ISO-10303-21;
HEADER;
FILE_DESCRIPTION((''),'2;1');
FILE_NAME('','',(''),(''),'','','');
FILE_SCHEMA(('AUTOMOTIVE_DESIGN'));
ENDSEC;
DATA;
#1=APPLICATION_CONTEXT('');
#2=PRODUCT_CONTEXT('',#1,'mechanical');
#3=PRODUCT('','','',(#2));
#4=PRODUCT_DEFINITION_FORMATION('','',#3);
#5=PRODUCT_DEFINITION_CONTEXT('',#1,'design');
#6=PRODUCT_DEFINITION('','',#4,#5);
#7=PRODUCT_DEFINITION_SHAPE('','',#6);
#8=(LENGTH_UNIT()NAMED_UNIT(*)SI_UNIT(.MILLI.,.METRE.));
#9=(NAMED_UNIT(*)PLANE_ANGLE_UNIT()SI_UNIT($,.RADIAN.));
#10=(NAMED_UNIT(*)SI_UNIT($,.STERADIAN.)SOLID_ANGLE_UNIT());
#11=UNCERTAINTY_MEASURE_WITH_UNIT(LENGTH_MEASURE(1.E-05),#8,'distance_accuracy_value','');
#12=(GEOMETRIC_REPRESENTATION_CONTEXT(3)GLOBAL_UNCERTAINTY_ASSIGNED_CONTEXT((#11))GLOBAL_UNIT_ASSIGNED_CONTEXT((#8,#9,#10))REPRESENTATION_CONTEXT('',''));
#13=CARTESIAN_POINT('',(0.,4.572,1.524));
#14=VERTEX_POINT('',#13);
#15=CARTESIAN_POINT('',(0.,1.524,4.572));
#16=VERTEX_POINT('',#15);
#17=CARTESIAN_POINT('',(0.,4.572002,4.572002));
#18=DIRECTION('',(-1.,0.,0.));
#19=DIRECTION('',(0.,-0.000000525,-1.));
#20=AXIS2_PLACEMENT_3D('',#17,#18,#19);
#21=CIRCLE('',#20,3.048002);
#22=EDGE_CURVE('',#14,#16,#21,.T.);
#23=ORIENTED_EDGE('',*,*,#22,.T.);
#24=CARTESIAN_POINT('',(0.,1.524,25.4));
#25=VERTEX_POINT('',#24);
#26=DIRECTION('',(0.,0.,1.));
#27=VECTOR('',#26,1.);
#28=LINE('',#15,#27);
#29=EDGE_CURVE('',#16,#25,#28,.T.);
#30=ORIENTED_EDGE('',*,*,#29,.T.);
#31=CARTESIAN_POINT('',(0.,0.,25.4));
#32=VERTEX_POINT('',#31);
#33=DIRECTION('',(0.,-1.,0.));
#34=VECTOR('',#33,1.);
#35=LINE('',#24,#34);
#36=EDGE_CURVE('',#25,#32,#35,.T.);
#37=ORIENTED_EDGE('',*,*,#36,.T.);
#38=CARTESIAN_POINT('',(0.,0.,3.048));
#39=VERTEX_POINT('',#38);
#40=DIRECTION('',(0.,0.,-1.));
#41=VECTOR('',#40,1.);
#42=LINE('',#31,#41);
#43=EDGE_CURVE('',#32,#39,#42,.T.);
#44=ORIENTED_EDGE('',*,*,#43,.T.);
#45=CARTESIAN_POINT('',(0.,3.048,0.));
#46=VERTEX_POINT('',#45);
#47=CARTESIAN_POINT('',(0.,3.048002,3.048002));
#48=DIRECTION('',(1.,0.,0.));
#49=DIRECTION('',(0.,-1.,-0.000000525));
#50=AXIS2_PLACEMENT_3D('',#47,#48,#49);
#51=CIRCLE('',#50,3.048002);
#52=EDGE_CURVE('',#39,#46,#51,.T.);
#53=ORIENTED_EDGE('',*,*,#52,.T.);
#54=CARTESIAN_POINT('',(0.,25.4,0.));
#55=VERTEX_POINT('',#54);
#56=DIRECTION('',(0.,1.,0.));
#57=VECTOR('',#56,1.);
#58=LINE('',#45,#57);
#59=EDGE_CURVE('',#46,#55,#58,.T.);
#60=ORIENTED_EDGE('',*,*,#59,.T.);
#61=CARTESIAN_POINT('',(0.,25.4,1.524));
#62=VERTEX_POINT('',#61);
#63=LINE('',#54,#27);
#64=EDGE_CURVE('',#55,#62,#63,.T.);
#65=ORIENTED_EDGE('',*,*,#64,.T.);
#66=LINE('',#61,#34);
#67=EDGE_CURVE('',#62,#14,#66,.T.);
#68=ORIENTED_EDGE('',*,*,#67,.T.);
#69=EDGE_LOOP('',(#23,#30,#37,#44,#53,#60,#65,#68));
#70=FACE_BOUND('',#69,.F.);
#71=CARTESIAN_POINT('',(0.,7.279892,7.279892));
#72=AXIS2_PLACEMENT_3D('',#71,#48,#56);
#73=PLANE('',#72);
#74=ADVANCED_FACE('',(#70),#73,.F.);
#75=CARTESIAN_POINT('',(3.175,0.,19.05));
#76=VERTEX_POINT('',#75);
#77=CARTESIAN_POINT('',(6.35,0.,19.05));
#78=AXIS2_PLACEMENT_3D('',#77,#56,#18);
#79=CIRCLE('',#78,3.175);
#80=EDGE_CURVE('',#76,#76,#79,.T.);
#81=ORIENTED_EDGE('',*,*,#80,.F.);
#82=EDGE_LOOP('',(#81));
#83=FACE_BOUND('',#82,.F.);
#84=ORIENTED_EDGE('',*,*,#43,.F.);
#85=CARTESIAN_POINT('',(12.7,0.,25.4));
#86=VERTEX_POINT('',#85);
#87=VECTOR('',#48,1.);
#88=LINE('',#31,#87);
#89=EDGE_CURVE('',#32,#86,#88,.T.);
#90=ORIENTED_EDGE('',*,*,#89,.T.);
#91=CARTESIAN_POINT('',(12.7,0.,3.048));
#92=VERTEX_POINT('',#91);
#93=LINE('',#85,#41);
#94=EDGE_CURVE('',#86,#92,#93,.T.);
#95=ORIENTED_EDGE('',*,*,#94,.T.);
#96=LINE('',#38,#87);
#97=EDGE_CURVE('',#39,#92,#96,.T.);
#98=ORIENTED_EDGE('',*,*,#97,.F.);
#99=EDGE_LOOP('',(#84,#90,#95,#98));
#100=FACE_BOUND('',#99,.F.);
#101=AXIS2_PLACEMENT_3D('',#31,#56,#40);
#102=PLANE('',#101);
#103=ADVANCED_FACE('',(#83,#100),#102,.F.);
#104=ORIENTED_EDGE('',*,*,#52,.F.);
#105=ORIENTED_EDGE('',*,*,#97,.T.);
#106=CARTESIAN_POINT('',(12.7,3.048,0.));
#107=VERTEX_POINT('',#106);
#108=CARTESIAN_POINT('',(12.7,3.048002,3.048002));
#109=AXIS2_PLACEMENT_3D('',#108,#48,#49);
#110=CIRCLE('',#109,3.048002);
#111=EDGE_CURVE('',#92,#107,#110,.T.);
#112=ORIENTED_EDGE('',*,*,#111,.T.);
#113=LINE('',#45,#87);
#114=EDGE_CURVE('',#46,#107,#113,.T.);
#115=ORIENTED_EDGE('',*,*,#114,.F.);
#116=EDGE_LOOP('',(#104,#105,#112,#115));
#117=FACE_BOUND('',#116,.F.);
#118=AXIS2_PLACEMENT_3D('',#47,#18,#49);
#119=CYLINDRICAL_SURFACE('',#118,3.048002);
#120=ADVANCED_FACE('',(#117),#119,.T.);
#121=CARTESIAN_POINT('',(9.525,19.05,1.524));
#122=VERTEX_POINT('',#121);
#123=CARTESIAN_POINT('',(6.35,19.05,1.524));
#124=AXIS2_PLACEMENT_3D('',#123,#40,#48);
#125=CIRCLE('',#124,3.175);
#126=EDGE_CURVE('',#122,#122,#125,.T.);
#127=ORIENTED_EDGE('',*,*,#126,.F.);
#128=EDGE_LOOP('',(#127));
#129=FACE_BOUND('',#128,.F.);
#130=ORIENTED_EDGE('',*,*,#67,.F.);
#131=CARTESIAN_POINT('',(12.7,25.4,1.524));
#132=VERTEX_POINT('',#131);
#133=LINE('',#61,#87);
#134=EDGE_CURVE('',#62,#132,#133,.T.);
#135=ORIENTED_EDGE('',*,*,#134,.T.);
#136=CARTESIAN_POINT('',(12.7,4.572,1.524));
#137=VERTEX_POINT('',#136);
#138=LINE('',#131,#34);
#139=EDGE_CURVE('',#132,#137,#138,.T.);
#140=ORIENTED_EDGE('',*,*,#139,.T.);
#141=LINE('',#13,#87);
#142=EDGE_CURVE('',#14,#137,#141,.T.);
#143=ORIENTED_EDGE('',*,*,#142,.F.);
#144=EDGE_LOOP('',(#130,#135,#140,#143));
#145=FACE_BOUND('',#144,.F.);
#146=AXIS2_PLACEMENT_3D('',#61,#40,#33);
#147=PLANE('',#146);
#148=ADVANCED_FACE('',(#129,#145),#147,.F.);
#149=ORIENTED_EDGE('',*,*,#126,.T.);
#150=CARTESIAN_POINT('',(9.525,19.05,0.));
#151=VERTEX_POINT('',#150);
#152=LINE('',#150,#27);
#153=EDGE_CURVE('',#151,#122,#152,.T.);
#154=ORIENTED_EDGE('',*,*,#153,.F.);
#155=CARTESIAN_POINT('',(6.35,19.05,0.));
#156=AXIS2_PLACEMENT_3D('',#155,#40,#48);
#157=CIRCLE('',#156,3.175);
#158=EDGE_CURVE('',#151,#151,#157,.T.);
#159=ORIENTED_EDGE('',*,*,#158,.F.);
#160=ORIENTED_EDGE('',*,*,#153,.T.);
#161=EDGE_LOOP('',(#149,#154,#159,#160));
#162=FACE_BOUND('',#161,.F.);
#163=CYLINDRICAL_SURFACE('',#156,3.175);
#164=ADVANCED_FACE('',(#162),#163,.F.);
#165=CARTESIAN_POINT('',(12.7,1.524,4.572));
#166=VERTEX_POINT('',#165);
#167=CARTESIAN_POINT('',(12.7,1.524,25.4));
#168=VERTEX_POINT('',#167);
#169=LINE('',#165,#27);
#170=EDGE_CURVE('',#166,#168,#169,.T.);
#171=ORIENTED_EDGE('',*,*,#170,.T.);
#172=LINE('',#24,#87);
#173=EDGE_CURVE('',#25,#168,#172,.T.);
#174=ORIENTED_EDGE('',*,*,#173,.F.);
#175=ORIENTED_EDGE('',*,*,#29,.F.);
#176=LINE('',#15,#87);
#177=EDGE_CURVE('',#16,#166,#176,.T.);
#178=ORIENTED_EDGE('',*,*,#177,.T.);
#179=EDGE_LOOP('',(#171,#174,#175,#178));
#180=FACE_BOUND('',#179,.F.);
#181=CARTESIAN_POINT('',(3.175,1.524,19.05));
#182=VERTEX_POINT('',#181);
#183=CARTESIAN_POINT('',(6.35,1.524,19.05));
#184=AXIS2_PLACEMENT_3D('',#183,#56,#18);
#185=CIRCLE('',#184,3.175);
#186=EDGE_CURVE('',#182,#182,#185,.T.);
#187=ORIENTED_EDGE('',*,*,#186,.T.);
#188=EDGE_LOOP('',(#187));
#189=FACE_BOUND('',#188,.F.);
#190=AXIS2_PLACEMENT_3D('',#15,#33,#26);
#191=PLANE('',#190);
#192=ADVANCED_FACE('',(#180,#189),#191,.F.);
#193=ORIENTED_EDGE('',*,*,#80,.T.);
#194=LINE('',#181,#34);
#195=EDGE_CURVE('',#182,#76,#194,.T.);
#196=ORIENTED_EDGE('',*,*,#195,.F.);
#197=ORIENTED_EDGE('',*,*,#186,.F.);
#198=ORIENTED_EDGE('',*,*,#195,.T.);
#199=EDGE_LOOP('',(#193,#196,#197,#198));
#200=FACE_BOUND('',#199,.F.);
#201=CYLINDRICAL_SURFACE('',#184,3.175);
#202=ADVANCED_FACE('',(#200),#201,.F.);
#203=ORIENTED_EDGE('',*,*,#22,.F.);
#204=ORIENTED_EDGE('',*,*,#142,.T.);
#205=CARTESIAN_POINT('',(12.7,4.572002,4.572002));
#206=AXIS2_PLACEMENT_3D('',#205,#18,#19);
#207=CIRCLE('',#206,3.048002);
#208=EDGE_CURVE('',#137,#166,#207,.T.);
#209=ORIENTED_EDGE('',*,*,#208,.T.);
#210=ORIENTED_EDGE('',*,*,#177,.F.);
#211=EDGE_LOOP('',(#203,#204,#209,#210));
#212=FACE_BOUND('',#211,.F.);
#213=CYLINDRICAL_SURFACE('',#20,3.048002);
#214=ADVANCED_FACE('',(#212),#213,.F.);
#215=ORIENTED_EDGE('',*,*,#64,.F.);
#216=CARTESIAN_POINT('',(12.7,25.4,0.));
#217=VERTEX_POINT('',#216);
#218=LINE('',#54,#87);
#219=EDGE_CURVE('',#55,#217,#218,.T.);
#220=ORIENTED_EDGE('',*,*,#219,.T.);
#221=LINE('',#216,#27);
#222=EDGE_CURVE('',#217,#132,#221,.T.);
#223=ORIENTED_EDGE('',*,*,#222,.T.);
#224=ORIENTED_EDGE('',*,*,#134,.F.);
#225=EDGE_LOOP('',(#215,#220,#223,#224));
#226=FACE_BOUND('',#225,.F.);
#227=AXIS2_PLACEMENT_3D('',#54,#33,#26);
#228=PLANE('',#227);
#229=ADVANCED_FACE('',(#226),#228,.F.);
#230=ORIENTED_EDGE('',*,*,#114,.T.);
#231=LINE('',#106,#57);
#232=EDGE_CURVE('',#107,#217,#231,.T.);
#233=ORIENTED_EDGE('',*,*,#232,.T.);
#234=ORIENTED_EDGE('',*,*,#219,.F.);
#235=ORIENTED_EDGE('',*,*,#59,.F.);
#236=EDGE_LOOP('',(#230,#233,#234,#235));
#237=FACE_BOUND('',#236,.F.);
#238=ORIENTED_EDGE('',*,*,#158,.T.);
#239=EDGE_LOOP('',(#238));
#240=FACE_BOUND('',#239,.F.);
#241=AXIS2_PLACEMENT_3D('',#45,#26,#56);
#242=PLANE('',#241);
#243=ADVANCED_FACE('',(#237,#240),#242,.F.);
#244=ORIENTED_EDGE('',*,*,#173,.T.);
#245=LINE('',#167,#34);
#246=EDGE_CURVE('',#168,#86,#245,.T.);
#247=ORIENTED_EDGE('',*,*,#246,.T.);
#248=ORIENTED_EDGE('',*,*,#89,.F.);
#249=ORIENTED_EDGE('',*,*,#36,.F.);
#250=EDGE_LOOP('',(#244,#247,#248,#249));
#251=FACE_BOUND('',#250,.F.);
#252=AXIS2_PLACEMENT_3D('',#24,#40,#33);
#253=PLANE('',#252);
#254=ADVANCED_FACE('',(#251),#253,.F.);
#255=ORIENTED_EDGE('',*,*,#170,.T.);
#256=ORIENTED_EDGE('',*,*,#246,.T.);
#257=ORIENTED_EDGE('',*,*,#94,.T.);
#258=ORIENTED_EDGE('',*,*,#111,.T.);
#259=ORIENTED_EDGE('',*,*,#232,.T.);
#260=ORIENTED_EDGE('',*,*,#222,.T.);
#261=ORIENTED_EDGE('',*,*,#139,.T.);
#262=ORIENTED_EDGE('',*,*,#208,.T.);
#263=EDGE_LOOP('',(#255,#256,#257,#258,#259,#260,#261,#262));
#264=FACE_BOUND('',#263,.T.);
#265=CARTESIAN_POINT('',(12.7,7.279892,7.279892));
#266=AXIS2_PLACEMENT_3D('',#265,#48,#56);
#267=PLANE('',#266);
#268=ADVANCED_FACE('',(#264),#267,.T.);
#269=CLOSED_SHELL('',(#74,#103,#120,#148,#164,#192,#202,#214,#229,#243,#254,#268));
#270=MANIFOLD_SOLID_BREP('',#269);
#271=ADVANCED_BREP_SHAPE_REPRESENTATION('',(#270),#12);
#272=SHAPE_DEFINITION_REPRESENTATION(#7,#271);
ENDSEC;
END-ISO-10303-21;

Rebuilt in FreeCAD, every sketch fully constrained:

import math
import FreeCAD as App
import Part
import Sketcher

V = App.Vector
Q = App.Units.Quantity

doc = App.newDocument("Part")
body = doc.addObject("PartDesign::Body", "Body")

# Sketch on YZ plane
sketch1 = body.newObject("Sketcher::SketchObject", "Sketch")
sketch1.AttachmentSupport = (doc.getObject("YZ_Plane"), [""])
sketch1.MapMode = "FlatFace"
sketch1.addGeometry(Part.LineSegment(V(0, 25.4, 0), V(0, 3, 0)), False)
sketch1.addGeometry(Part.ArcOfCircle(Part.Circle(V(3, 3, 0), V(0, 0, 1), 3), math.radians(-180), math.radians(-90)), False)
sketch1.addGeometry(Part.LineSegment(V(3, 0, 0), V(25.4, 0, 0)), False)
sketch1.addGeometry(Part.LineSegment(V(25.4, 0, 0), V(25.4, 1.5, 0)), False)
sketch1.addGeometry(Part.LineSegment(V(25.4, 1.5, 0), V(4.6, 1.5, 0)), False)
sketch1.addGeometry(Part.ArcOfCircle(Part.Circle(V(4.6, 4.6, 0), V(0, 0, 1), 3), math.radians(-180), math.radians(-90)), False)
sketch1.addGeometry(Part.LineSegment(V(1.5, 4.6, 0), V(1.5, 25.4, 0)), False)
sketch1.addGeometry(Part.LineSegment(V(1.5, 25.4, 0), V(0, 25.4, 0)), False)
sketch1.addConstraint(Sketcher.Constraint("Tangent", 0, 2, 1, 1))
sketch1.addConstraint(Sketcher.Constraint("Tangent", 1, 2, 2, 1))
sketch1.addConstraint(Sketcher.Constraint("Coincident", 2, 2, 3, 1))
sketch1.addConstraint(Sketcher.Constraint("Coincident", 3, 2, 4, 1))
sketch1.addConstraint(Sketcher.Constraint("Tangent", 4, 2, 5, 2))
sketch1.addConstraint(Sketcher.Constraint("Tangent", 5, 1, 6, 1))
sketch1.addConstraint(Sketcher.Constraint("Coincident", 6, 2, 7, 1))
sketch1.addConstraint(Sketcher.Constraint("Coincident", 7, 2, 0, 1))
sketch1.addConstraint(Sketcher.Constraint("Vertical", 0))
sketch1.addConstraint(Sketcher.Constraint("Horizontal", 2))
sketch1.addConstraint(Sketcher.Constraint("Vertical", 3))
sketch1.addConstraint(Sketcher.Constraint("Horizontal", 4))
sketch1.addConstraint(Sketcher.Constraint("Vertical", 6))
sketch1.addConstraint(Sketcher.Constraint("Horizontal", 7))
sketch1.addConstraint(Sketcher.Constraint("Equal", 1, 5))
sketch1.addConstraint(Sketcher.Constraint("PointOnObject", 0, 2, -2))
sketch1.addConstraint(Sketcher.Constraint("PointOnObject", 1, 2, -1))
sketch1.addConstraint(Sketcher.Constraint("Equal", 2, 0))
sketch1.addConstraint(Sketcher.Constraint("Equal", 7, 3))
sketch1.addConstraint(Sketcher.Constraint("Radius", 1, Q("0.1200001 in")))
sketch1.addConstraint(Sketcher.Constraint("DistanceX", -1, 1, 2, 2, Q("1 in")))
sketch1.addConstraint(Sketcher.Constraint("DistanceX", 4, 2, 4, 1, Q("0.82 in")))
pad1 = body.newObject("PartDesign::Pad", "Pad")
pad1.Profile = sketch1
pad1.Length = Q("0.5 in")

# Sketch on XZ plane
sketch2 = body.newObject("Sketcher::SketchObject", "Sketch001")
sketch2.AttachmentSupport = (doc.getObject("XZ_Plane"), [""])
sketch2.MapMode = "FlatFace"
sketch2.AttachmentOffset = App.Placement(V(0, 0, -0.06 * 25.4), App.Rotation())
sketch2.addGeometry(Part.Circle(V(6.3, 19.1, 0), V(0, 0, 1), 3.2), False)
sketch2.addConstraint(Sketcher.Constraint("Diameter", 0, Q("0.25 in")))
sketch2.addConstraint(Sketcher.Constraint("DistanceX", -1, 1, 0, 3, Q("0.25 in")))
sketch2.addConstraint(Sketcher.Constraint("DistanceY", -1, 1, 0, 3, Q("0.75 in")))
pocket1 = body.newObject("PartDesign::Pocket", "Pocket")
pocket1.Profile = sketch2
pocket1.Length = Q("1 in")
pocket1.Reversed = True

# Sketch on XY plane
sketch3 = body.newObject("Sketcher::SketchObject", "Sketch002")
sketch3.AttachmentSupport = (doc.getObject("XY_Plane"), [""])
sketch3.MapMode = "FlatFace"
sketch3.addGeometry(Part.Circle(V(6.3, 19.1, 0), V(0, 0, 1), 3.2), False)
sketch3.addConstraint(Sketcher.Constraint("Diameter", 0, Q("0.25 in")))
sketch3.addConstraint(Sketcher.Constraint("DistanceX", -1, 1, 0, 3, Q("0.25 in")))
sketch3.addConstraint(Sketcher.Constraint("DistanceY", -1, 1, 0, 3, Q("0.75 in")))
pocket2 = body.newObject("PartDesign::Pocket", "Pocket001")
pocket2.Profile = sketch3
pocket2.Length = Q("1 in")
pocket2.Reversed = True

doc.recompute()
